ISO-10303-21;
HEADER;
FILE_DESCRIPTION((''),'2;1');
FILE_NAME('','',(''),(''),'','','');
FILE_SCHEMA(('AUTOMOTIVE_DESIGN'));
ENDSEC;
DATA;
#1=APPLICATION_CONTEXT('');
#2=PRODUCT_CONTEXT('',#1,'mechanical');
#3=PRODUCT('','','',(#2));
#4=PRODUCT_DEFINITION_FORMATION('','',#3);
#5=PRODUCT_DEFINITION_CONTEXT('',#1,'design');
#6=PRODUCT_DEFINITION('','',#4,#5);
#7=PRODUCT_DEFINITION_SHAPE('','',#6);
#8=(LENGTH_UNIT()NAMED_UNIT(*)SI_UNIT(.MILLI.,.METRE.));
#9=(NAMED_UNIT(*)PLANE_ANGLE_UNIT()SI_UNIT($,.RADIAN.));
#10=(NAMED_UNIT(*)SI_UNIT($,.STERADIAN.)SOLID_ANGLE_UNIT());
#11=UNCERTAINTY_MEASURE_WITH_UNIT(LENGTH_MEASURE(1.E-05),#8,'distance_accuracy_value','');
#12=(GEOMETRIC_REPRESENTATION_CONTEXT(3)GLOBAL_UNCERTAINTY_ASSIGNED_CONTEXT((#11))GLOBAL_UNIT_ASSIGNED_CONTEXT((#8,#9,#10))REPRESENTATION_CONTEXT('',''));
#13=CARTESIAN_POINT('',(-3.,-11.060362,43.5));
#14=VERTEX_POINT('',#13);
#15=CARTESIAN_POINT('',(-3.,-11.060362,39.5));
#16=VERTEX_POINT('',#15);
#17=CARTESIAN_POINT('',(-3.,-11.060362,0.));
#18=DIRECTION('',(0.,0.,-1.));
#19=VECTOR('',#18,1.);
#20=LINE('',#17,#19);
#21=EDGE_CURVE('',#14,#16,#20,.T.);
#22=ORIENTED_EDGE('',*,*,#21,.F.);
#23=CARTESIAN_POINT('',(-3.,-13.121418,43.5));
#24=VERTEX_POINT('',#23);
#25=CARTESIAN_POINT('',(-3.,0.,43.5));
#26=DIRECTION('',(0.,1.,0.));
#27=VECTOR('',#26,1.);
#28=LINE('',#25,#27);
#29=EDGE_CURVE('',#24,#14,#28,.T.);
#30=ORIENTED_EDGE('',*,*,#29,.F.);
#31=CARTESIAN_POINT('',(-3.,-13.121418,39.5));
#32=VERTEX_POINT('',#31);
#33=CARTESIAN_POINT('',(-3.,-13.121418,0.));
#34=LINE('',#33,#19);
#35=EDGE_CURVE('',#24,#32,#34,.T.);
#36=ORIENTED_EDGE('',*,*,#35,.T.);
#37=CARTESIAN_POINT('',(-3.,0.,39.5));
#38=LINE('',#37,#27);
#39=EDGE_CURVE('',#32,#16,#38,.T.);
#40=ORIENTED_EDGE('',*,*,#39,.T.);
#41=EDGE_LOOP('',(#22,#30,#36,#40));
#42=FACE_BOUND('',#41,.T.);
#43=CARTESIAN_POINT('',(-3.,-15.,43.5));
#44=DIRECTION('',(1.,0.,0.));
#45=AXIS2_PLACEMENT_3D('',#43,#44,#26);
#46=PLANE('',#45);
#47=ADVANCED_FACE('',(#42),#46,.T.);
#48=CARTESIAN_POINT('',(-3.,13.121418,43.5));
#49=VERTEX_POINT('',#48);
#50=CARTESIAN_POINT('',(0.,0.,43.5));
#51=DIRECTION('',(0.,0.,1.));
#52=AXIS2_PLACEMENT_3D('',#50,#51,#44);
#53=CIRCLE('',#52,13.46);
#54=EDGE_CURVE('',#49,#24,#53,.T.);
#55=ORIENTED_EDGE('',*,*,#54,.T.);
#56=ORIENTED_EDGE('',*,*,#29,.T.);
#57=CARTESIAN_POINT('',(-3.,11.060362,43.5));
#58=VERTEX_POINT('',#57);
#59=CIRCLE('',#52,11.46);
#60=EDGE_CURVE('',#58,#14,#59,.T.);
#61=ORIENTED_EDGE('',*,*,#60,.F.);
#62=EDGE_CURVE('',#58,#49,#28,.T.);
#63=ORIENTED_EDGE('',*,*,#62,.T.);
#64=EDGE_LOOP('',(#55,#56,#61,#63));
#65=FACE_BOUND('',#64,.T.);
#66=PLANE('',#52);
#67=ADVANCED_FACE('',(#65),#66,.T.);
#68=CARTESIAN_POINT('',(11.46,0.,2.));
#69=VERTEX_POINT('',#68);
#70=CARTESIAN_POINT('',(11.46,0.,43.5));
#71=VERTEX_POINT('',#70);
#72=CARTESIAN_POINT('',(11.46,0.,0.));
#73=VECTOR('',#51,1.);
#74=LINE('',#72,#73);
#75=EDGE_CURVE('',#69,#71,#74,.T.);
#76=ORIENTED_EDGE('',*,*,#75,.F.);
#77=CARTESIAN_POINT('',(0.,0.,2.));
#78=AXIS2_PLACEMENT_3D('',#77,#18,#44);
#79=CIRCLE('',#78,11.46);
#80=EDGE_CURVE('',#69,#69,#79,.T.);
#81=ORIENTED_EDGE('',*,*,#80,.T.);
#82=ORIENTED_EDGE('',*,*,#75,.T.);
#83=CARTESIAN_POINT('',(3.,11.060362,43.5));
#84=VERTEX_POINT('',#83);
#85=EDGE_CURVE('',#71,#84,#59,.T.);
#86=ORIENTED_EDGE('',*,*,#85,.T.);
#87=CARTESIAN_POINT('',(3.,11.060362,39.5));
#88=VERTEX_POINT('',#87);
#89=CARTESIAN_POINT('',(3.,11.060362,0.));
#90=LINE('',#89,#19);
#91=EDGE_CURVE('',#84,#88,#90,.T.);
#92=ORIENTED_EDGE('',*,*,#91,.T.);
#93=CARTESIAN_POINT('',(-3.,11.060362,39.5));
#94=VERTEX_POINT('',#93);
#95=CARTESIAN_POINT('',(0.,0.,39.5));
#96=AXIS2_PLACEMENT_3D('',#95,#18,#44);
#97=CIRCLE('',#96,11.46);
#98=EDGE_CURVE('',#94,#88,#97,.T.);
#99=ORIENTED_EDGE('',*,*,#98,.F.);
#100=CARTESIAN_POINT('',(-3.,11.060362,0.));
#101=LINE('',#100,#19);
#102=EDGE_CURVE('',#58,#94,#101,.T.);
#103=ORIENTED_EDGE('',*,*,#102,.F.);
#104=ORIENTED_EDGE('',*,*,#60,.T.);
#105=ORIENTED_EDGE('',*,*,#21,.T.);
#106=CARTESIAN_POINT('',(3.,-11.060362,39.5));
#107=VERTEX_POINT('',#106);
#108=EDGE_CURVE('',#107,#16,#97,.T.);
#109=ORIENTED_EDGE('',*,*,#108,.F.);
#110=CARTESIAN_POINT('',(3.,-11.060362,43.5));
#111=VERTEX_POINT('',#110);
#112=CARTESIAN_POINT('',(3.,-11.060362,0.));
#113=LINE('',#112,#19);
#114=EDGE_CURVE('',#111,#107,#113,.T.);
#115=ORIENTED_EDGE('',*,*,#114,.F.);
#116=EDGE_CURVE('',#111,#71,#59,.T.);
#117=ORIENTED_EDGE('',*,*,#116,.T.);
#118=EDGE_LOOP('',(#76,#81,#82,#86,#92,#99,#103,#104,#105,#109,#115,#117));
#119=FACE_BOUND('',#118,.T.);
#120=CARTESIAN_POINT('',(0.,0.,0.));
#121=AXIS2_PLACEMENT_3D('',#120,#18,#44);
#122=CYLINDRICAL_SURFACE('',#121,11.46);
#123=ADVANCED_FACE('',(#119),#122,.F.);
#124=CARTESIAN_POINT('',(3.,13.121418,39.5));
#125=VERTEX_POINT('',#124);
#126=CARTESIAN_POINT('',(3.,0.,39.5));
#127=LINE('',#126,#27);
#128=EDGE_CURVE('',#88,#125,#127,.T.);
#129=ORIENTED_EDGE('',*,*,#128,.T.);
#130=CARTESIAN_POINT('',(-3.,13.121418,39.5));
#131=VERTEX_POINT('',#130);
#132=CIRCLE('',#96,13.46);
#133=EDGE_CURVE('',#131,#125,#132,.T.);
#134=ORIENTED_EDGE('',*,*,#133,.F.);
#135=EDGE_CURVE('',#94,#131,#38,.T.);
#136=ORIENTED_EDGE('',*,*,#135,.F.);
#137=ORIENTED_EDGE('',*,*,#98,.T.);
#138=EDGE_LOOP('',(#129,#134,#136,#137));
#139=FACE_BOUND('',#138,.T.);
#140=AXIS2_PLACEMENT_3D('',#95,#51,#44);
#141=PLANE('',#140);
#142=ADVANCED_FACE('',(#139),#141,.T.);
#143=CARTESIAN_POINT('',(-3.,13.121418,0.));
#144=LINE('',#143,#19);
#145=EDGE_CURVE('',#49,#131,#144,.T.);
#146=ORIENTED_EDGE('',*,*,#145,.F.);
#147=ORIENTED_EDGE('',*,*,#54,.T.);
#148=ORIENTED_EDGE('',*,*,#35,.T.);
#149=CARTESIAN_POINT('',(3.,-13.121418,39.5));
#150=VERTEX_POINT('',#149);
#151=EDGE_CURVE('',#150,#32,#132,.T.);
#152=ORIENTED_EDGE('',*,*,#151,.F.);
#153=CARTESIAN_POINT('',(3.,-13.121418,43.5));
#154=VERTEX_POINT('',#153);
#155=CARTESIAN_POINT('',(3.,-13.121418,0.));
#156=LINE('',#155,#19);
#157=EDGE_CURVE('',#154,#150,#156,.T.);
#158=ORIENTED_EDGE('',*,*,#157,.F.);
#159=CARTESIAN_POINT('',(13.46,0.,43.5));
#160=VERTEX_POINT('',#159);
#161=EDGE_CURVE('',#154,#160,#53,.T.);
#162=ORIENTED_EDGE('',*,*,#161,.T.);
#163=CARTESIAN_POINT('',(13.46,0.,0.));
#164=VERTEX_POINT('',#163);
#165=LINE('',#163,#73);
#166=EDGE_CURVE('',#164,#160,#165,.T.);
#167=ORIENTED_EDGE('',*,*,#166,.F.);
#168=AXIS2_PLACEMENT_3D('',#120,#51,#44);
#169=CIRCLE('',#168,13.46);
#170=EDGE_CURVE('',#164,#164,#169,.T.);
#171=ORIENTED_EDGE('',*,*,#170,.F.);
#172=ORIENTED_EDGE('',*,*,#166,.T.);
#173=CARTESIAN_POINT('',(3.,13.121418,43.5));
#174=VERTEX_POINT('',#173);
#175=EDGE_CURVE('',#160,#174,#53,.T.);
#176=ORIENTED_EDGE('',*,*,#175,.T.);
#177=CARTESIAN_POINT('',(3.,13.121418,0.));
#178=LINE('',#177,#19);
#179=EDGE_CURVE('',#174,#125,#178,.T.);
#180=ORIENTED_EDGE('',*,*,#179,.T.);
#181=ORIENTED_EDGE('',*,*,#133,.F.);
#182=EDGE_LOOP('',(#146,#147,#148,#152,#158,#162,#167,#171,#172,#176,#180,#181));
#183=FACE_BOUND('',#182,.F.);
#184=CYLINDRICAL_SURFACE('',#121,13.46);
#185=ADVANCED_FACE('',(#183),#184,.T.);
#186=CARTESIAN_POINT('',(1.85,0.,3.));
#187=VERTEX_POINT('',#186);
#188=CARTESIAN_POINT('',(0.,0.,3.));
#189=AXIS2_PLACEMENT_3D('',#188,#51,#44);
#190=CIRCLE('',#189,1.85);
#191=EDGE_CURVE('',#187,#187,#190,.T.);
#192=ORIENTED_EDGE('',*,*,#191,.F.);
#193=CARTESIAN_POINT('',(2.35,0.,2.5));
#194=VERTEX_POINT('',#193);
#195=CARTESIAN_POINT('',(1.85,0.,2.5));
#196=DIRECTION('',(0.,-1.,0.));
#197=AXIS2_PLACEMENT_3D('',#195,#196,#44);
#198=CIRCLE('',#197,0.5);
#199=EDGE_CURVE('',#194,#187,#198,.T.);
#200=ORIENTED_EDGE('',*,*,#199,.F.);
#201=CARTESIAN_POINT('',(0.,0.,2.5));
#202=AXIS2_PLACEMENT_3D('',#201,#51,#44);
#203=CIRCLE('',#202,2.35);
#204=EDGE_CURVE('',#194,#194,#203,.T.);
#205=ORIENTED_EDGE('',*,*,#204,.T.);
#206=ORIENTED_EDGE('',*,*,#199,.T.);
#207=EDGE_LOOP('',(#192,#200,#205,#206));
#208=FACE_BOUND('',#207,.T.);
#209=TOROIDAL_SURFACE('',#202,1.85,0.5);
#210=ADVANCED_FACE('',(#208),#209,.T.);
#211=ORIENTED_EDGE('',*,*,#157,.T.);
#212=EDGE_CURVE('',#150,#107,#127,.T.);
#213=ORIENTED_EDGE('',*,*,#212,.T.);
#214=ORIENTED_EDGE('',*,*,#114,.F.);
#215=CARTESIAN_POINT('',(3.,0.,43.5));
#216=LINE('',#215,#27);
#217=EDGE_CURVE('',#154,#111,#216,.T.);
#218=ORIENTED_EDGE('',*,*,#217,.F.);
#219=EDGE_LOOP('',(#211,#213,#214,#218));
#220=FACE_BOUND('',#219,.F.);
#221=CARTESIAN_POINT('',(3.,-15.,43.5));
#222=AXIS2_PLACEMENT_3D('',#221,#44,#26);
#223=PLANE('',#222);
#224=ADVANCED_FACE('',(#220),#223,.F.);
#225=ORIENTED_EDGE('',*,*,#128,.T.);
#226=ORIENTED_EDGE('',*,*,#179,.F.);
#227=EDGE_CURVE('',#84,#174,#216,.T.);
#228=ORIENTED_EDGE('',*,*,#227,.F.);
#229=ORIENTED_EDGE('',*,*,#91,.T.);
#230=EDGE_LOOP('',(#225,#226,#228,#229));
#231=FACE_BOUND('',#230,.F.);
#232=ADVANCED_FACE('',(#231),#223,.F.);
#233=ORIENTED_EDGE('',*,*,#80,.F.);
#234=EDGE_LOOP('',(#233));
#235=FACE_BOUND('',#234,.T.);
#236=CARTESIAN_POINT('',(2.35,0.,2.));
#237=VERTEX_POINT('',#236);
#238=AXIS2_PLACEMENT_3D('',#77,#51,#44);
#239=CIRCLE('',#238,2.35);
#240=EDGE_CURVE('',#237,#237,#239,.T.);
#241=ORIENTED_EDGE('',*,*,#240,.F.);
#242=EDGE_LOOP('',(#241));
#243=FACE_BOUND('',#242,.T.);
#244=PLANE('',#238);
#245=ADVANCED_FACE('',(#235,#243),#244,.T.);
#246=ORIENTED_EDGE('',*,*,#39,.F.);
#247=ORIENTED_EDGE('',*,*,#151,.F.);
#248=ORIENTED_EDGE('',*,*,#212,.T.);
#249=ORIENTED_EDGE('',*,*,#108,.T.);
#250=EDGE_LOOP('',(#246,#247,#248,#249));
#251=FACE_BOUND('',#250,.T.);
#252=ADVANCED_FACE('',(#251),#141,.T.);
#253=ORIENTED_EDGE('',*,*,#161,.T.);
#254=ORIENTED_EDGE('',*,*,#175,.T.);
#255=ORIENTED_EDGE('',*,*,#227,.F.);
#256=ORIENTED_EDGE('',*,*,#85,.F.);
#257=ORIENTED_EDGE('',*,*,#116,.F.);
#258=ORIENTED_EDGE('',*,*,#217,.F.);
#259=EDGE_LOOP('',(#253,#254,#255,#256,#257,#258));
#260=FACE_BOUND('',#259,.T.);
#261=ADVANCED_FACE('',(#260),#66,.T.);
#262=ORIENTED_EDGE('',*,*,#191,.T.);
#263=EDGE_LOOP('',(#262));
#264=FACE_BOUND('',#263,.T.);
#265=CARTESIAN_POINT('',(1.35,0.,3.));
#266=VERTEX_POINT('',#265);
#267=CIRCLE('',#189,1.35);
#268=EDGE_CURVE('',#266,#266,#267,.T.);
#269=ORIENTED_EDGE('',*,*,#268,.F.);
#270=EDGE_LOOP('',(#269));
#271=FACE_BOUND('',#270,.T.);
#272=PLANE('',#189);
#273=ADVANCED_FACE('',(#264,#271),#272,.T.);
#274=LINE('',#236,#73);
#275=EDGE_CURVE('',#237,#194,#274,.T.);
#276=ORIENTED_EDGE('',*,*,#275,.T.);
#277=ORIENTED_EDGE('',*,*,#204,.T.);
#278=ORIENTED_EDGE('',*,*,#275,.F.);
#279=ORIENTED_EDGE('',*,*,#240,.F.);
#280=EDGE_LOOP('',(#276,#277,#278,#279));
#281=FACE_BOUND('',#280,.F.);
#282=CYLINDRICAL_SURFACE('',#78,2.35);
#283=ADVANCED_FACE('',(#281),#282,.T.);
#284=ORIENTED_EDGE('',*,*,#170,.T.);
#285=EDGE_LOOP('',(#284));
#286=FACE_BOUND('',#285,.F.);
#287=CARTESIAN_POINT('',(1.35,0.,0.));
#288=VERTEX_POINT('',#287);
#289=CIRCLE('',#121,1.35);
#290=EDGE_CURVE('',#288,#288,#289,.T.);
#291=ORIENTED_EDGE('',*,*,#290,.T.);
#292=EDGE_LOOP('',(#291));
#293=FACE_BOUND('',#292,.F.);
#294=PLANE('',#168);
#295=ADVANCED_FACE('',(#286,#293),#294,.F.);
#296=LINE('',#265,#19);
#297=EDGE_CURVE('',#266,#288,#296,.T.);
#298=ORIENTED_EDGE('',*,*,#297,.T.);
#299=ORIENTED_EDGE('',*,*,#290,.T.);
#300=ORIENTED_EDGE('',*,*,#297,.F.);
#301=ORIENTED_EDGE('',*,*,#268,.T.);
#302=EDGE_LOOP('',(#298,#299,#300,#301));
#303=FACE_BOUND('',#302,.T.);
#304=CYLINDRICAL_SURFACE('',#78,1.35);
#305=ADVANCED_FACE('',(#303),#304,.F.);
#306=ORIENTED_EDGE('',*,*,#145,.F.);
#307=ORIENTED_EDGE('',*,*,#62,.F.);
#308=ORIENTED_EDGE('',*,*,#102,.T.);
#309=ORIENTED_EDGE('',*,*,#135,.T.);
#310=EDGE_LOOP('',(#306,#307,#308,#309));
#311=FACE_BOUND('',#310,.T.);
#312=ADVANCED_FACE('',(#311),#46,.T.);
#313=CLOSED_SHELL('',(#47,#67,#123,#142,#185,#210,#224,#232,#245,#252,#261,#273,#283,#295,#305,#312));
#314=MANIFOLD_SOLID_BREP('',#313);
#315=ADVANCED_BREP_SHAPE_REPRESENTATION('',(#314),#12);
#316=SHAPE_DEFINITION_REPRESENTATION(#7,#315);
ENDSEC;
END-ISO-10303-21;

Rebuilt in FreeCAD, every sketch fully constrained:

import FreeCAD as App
import Part
import Sketcher

V = App.Vector


def edges_at(feature, points):
    """Names of the edges that pass closest to the given points."""
    edges = feature.Shape.Edges
    near = lambda p: min(range(len(edges)), key=lambda i: edges[i].distToShape(Part.Vertex(*p))[0])
    return sorted({f"Edge{near(p) + 1}" for p in points})


def faces_at(feature, points):
    """Names of the faces that lie closest to the given points."""
    faces = feature.Shape.Faces
    near = lambda p: min(range(len(faces)), key=lambda i: faces[i].distToShape(Part.Vertex(*p))[0])
    return sorted({f"Face{near(p) + 1}" for p in points})


def add_polygon(sketch, points):
    """Adds a closed chain of lines whose ends are joined by coincident constraints."""
    first, n = sketch.GeometryCount, len(points)
    for a, b in zip(points, points[1:] + points[:1]):
        sketch.addGeometry(Part.LineSegment(App.Vector(*a, 0), App.Vector(*b, 0)), False)
    for i in range(n):
        sketch.addConstraint(Sketcher.Constraint("Coincident", first + i, 2, first + (i + 1) % n, 1))

doc = App.newDocument("Part")
body = doc.addObject("PartDesign::Body", "Body")

# Sketch on XY plane
sketch1 = body.newObject("Sketcher::SketchObject", "Sketch")
sketch1.AttachmentSupport = (doc.getObject("XY_Plane"), [""])
sketch1.MapMode = "FlatFace"
sketch1.addGeometry(Part.Circle(V(0, 0, 0), V(0, 0, 1), 13), False)
sketch1.addConstraint([
    Sketcher.Constraint("Coincident", 0, 3, -1, 1),
    Sketcher.Constraint("Diameter", 0, 26.92),
])
pad1 = body.newObject("PartDesign::Pad", "Pad")
pad1.Profile = sketch1
pad1.Length = 43.5
doc.recompute()

thickness = body.newObject("PartDesign::Thickness", "Thickness")
thickness.Base = (pad1, faces_at(pad1, [(0, 0, 43.5)]))
thickness.Value = 2
thickness.Reversed = True
thickness.Join = "Arc"

# Sketch on XY plane
sketch2 = body.newObject("Sketcher::SketchObject", "Sketch001")
sketch2.AttachmentSupport = (doc.getObject("XY_Plane"), [""])
sketch2.MapMode = "FlatFace"
sketch2.AttachmentOffset = App.Placement(V(0, 0, 43.5), App.Rotation())
add_polygon(sketch2, [(-3, 15), (-3, -15), (3, -15), (3, 15)])  # lines 0-3
sketch2.addConstraint([
    Sketcher.Constraint("Vertical", 0),
    Sketcher.Constraint("Horizontal", 1),
    Sketcher.Constraint("Vertical", 2),
    Sketcher.Constraint("Horizontal", 3),
    Sketcher.Constraint("Symmetric", 0, 2, 2, 2, -1, 1),
    Sketcher.Constraint("DistanceX", 1, 1, 1, 2, 6.0),
    Sketcher.Constraint("DistanceY", 0, 2, 0, 1, 30.0),
])
pocket1 = body.newObject("PartDesign::Pocket", "Pocket")
pocket1.Profile = sketch2
pocket1.Length = 4

# Sketch on XY plane
sketch3 = body.newObject("Sketcher::SketchObject", "Sketch002")
sketch3.AttachmentSupport = (doc.getObject("XY_Plane"), [""])
sketch3.MapMode = "FlatFace"
sketch3.addGeometry(Part.Circle(V(0, 0, 0), V(0, 0, 1), 1.4), False)
sketch3.addConstraint([
    Sketcher.Constraint("Coincident", 0, 3, -1, 1),
    Sketcher.Constraint("Diameter", 0, 2.7),
])
pocket2 = body.newObject("PartDesign::Pocket", "Pocket001")
pocket2.Profile = sketch3
pocket2.Type = "ThroughAll"
pocket2.Reversed = True

# Sketch on XY plane
sketch4 = body.newObject("Sketcher::SketchObject", "Sketch003")
sketch4.AttachmentSupport = (doc.getObject("XY_Plane"), [""])
sketch4.MapMode = "FlatFace"
sketch4.AttachmentOffset = App.Placement(V(0, 0, 2), App.Rotation())
sketch4.addGeometry([
    Part.Circle(V(0, 0, 0), V(0, 0, 1), 2.4),
    Part.Circle(V(0, 0, 0), V(0, 0, 1), 1.4),
], False)
sketch4.addConstraint([
    Sketcher.Constraint("Coincident", 0, 3, -1, 1),
    Sketcher.Constraint("Coincident", 1, 3, -1, 1),
    Sketcher.Constraint("Diameter", 0, 4.7),
    Sketcher.Constraint("Diameter", 1, 2.7),
])
pad2 = body.newObject("PartDesign::Pad", "Pad001")
pad2.Profile = sketch4
pad2.Length = 1
doc.recompute()

fillet = body.newObject("PartDesign::Fillet", "Fillet")
fillet.Base = (pad2, edges_at(pad2, [(-2.35, 0, 3)]))
fillet.Radius = 0.5

doc.recompute()
